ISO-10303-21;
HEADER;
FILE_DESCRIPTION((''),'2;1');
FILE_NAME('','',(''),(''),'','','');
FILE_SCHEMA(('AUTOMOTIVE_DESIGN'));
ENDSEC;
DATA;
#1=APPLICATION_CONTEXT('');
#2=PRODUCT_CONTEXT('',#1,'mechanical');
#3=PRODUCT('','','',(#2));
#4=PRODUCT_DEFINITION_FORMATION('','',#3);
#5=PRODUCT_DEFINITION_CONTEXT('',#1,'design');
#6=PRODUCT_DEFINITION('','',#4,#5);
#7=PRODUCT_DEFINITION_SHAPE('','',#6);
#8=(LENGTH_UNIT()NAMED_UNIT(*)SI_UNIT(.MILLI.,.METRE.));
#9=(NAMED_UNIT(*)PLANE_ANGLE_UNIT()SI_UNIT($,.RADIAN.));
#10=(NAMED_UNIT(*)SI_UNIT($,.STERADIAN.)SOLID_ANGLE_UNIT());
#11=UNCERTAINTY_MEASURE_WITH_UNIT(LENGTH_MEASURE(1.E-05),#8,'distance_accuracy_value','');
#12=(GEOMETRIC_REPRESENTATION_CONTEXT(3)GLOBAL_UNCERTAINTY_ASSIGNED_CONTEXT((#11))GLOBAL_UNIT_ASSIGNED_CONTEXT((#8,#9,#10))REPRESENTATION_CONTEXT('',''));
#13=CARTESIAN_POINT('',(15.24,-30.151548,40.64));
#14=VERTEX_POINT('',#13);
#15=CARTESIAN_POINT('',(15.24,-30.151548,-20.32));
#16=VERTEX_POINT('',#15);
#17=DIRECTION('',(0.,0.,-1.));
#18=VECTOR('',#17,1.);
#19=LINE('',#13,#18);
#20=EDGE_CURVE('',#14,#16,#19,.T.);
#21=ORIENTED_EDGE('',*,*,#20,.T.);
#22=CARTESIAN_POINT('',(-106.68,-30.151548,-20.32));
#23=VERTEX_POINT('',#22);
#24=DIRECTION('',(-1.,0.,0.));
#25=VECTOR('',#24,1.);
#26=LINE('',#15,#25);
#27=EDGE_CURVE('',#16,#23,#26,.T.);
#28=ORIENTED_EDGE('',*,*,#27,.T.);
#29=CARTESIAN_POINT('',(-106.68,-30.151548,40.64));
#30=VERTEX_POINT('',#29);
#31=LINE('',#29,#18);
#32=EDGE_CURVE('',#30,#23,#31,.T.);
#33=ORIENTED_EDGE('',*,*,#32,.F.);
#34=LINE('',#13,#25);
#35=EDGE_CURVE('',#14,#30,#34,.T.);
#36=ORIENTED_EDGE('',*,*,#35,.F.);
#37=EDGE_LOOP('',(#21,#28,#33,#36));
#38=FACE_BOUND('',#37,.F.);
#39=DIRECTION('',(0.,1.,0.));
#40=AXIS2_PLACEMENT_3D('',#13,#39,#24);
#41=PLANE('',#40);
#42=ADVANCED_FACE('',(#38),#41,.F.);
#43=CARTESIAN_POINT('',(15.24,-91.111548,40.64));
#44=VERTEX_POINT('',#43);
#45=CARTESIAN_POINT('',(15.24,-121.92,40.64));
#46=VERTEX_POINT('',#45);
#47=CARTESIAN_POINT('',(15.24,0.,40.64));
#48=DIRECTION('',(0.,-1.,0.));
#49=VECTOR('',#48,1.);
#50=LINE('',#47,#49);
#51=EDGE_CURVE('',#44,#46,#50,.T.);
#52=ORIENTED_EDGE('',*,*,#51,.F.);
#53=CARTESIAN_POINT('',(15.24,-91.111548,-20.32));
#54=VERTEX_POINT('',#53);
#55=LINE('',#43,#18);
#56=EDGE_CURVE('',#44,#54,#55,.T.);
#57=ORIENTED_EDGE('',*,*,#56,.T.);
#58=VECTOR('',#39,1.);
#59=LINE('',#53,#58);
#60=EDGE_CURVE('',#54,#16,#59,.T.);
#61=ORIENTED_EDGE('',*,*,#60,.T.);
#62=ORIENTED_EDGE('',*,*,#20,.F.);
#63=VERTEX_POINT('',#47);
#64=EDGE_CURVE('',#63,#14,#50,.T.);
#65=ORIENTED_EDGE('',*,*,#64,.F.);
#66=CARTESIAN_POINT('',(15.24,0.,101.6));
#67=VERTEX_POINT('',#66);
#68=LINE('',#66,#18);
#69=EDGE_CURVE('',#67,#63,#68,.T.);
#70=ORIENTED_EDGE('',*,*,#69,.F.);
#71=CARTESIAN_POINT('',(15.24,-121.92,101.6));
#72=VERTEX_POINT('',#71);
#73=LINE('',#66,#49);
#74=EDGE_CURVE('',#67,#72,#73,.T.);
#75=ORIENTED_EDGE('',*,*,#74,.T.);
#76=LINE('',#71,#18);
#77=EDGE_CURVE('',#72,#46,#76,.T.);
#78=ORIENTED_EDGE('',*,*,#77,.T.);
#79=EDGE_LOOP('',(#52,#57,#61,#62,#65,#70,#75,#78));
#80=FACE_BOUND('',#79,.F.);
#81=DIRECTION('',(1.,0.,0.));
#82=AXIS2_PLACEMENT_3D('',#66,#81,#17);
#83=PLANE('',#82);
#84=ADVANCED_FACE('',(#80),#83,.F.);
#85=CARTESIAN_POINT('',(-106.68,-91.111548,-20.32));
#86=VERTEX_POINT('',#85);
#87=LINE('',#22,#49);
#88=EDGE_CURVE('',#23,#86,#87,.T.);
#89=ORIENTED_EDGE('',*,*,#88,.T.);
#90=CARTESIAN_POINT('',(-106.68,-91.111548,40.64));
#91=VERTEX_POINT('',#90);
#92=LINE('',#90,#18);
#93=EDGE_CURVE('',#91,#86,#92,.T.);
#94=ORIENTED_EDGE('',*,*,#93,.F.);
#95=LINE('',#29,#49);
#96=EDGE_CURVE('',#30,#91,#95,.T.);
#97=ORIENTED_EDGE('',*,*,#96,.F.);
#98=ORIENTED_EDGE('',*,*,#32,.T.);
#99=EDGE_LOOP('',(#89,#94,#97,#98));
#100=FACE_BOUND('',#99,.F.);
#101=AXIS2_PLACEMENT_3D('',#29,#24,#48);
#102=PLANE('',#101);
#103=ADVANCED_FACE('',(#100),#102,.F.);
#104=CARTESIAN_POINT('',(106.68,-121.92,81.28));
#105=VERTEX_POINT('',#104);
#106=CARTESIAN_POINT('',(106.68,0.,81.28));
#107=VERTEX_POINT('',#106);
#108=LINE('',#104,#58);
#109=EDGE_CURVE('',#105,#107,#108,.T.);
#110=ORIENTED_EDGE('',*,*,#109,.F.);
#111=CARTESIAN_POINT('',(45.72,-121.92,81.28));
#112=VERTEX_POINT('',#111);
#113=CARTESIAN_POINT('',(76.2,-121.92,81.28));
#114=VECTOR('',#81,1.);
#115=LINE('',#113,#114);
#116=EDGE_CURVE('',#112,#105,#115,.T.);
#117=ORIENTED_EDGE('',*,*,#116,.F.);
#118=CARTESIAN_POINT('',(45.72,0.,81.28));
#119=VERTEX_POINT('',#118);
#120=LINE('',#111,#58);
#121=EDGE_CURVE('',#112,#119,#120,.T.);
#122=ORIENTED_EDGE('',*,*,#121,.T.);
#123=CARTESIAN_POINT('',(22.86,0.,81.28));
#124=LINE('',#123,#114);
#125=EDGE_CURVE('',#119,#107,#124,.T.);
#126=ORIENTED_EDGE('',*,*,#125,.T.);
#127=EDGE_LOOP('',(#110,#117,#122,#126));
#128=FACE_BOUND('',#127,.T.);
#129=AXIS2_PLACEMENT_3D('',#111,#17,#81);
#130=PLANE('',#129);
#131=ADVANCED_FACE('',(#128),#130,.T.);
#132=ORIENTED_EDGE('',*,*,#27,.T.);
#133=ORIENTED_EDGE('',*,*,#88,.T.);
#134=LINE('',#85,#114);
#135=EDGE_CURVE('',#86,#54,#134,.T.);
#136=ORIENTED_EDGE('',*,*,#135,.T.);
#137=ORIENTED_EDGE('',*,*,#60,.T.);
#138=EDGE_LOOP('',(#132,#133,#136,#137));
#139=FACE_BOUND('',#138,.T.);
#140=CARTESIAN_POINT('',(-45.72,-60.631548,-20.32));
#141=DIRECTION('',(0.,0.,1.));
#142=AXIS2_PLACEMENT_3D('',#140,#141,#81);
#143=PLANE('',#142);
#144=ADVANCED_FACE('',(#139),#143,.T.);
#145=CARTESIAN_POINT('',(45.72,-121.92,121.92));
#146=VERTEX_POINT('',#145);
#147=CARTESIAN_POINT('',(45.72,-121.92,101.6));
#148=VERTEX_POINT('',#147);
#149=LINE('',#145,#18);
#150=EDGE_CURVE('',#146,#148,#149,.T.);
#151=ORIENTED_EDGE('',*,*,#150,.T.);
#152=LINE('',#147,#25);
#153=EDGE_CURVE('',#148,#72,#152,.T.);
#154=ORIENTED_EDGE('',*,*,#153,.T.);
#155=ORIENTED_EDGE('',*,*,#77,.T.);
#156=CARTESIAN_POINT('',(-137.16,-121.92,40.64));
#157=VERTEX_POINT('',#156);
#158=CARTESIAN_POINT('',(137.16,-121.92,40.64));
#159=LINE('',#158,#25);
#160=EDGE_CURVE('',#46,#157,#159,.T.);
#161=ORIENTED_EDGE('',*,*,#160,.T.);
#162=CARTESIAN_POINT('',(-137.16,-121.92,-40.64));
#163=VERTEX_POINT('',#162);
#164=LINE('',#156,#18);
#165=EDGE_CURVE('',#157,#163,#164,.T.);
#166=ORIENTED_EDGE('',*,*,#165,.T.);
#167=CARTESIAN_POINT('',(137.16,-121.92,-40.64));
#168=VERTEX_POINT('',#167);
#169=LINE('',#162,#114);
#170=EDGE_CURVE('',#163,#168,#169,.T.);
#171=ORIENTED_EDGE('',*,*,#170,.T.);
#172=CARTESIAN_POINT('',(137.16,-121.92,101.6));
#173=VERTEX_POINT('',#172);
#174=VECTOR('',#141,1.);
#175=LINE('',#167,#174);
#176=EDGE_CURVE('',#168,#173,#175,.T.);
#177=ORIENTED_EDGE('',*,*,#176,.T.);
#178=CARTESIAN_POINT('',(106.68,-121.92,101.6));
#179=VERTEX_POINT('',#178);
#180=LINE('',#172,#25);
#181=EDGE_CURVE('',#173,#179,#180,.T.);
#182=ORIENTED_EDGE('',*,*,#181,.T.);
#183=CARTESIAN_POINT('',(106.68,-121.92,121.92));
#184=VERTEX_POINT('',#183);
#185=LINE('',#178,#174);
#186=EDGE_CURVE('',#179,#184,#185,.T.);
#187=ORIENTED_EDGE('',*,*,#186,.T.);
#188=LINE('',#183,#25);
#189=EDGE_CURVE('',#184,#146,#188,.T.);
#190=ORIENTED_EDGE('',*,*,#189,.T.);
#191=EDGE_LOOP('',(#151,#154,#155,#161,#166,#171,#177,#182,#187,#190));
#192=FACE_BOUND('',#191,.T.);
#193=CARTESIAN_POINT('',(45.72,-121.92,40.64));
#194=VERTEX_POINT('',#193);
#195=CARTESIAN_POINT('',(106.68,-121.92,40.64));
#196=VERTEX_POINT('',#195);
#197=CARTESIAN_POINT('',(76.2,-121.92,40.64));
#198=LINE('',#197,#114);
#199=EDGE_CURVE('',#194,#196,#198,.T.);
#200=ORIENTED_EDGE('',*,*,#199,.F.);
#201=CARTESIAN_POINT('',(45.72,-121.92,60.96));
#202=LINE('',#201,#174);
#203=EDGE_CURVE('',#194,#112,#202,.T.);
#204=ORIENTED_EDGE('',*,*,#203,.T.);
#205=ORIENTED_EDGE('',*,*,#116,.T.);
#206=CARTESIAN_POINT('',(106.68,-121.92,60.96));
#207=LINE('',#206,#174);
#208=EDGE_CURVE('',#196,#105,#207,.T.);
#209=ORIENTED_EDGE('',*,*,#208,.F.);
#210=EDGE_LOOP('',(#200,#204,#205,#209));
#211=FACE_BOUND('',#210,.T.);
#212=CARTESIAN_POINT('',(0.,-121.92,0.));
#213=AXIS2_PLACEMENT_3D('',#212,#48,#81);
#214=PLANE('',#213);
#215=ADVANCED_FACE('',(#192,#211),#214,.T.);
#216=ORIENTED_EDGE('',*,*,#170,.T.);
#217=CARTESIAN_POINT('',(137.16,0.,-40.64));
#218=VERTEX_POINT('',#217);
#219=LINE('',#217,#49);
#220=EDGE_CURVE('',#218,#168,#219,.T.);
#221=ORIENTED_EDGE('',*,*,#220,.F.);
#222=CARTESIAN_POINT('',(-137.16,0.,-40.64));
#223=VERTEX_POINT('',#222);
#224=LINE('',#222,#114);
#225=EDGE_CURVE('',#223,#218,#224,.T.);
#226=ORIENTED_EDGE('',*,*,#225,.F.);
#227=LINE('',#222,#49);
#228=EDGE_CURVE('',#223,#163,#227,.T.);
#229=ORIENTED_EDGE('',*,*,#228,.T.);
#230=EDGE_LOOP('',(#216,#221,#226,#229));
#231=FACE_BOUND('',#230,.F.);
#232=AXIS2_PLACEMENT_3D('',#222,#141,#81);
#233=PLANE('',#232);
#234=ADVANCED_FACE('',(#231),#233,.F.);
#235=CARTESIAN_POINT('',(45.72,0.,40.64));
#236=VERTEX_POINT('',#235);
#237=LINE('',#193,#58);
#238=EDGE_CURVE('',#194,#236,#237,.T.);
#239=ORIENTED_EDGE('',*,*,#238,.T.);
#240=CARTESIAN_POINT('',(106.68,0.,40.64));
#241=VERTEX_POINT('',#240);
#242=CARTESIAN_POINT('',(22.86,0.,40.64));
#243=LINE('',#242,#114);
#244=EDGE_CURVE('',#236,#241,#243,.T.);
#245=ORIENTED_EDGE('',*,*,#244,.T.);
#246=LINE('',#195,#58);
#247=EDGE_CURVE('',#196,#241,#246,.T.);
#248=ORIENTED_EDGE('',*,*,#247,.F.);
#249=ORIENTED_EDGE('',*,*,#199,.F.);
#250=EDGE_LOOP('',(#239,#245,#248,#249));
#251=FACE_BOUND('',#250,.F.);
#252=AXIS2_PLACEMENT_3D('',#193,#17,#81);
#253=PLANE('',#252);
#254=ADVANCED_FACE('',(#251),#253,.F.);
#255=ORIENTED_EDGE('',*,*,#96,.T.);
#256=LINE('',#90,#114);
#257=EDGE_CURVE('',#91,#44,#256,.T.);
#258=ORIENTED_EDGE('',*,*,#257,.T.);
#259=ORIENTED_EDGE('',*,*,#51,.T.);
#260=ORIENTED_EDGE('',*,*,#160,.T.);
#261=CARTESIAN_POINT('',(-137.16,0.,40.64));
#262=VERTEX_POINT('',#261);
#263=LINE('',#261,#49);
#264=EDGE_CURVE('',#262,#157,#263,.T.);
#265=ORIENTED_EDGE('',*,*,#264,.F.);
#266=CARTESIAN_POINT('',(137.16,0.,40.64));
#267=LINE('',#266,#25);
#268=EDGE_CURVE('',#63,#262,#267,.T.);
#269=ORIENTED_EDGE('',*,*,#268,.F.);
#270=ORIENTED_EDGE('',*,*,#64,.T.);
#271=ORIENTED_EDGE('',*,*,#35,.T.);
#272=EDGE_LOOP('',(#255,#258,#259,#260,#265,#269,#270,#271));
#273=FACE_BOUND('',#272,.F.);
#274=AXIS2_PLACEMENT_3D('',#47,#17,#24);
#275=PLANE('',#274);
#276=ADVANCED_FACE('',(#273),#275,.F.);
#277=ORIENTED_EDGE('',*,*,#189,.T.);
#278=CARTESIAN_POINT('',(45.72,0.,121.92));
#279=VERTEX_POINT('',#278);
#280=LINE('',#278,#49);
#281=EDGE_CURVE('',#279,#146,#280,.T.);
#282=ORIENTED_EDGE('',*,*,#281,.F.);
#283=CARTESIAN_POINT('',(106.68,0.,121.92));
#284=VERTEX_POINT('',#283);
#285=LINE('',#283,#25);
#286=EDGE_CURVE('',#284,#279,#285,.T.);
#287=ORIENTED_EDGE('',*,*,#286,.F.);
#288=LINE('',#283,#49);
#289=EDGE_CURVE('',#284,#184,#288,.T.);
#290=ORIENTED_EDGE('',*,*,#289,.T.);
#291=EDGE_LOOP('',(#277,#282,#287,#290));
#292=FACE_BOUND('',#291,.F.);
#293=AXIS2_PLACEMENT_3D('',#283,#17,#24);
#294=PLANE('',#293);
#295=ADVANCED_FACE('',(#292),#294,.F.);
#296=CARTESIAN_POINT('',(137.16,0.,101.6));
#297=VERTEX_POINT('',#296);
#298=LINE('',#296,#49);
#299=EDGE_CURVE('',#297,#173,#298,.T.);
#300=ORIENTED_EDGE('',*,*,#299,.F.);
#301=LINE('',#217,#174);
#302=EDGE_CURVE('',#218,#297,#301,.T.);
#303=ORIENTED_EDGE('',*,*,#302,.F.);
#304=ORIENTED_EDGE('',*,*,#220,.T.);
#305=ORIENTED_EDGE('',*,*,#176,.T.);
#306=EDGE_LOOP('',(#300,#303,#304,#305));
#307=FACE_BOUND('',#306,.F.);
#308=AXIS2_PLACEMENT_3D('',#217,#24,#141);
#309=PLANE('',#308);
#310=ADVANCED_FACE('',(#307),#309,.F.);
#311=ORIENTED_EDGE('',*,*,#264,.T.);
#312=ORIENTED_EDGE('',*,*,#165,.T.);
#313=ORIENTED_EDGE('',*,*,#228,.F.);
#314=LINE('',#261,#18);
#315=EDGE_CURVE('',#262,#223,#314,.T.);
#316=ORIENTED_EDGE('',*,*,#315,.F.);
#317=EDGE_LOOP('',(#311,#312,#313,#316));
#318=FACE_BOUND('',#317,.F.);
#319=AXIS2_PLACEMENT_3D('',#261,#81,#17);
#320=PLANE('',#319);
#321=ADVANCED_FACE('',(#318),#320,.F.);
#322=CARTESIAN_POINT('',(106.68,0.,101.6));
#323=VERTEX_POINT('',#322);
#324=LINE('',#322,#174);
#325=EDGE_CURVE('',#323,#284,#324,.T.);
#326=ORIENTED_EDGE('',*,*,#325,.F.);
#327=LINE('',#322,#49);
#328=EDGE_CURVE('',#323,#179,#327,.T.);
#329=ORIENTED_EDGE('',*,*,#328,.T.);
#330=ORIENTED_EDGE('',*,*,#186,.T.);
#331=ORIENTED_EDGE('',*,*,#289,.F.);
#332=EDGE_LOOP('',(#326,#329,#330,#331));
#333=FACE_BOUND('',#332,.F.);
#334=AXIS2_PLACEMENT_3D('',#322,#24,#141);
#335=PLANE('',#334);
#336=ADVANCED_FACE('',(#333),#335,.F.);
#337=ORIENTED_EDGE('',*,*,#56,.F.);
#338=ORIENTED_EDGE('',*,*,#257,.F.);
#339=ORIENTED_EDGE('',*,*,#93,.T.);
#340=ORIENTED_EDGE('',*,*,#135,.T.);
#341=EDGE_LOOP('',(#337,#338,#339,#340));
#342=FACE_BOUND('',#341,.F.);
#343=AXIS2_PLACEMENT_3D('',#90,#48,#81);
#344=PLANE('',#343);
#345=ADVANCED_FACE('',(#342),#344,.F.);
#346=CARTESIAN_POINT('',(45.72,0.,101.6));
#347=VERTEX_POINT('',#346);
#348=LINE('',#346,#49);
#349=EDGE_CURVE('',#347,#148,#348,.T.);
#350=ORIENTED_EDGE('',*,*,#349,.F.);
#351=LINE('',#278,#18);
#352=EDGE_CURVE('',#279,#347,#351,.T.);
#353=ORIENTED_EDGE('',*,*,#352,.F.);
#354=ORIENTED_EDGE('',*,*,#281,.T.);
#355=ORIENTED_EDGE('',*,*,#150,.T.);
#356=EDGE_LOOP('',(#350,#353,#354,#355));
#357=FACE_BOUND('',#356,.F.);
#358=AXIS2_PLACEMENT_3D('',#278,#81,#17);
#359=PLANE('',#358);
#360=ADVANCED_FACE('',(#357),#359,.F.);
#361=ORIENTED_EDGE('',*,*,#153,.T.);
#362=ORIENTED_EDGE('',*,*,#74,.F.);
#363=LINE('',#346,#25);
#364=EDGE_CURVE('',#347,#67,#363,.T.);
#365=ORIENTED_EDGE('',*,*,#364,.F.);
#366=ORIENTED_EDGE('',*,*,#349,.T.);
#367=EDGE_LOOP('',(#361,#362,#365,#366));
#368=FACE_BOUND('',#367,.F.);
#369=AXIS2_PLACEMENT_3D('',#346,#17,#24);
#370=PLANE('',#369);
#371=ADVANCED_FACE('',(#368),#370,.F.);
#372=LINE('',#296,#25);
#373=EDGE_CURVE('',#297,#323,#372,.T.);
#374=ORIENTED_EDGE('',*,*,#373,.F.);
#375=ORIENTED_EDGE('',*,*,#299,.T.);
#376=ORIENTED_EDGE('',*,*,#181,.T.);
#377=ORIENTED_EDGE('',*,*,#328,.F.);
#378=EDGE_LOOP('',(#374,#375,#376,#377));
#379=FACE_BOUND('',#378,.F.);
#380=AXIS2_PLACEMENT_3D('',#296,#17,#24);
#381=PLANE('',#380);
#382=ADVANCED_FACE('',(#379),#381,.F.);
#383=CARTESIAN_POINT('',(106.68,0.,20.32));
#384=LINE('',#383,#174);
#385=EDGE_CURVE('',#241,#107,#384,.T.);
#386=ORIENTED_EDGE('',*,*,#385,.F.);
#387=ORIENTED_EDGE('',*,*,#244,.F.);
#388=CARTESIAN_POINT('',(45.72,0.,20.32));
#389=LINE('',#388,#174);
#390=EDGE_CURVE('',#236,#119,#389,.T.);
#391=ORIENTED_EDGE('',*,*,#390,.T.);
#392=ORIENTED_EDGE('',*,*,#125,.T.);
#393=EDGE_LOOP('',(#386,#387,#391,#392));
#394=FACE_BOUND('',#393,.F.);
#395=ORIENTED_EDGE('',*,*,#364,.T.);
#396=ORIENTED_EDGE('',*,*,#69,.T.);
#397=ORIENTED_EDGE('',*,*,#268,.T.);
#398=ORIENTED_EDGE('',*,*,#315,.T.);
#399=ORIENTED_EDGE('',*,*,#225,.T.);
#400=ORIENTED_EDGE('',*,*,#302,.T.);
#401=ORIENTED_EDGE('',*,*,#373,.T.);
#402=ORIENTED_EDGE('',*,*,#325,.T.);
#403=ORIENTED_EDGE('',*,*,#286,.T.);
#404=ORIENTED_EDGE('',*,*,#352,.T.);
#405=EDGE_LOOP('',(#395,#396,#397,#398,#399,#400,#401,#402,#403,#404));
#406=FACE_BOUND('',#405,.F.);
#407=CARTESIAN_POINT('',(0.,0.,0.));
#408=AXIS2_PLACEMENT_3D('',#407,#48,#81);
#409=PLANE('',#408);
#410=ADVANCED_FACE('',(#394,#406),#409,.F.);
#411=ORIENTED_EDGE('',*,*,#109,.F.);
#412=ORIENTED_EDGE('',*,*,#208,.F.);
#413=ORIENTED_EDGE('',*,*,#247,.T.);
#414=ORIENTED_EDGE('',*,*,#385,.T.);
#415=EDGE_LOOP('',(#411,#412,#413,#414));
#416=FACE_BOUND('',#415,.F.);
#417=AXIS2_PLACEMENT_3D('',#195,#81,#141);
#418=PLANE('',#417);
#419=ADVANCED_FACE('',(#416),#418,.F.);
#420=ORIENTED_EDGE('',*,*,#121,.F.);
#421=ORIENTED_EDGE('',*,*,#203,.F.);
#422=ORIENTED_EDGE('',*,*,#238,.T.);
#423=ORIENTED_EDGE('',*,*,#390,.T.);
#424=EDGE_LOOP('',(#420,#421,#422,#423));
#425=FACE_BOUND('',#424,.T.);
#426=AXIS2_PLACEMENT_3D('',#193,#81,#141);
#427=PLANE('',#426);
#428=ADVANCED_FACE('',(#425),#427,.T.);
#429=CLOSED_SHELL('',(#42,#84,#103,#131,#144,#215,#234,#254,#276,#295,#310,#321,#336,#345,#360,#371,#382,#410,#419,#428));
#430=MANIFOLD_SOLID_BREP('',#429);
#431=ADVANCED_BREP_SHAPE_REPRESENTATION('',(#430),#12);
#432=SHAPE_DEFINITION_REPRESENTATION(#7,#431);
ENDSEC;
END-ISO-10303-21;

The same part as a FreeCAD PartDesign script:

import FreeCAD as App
import Part
import Sketcher

V = App.Vector
Q = App.Units.Quantity

doc = App.newDocument("Part")
body = doc.addObject("PartDesign::Body", "Body")

# Sketch on XZ plane
sketch1 = body.newObject("Sketcher::SketchObject", "Sketch")
sketch1.AttachmentSupport = (doc.getObject("XZ_Plane"), [""])
sketch1.MapMode = "FlatFace"
sketch1.addGeometry([
    Part.LineSegment(V(137, -41, 0), V(137, 102, 0)),  # 0
    Part.LineSegment(V(137, 102, 0), V(107, 102, 0)),  # 1
    Part.LineSegment(V(107, 102, 0), V(107, 122, 0)),  # 2
    Part.LineSegment(V(107, 122, 0), V(46, 122, 0)),  # 3
    Part.LineSegment(V(46, 122, 0), V(46, 102, 0)),  # 4
    Part.LineSegment(V(46, 102, 0), V(15, 102, 0)),  # 5
    Part.LineSegment(V(15, 102, 0), V(15, 41, 0)),  # 6
    Part.LineSegment(V(15, 41, 0), V(-137, 41, 0)),  # 7
    Part.LineSegment(V(-137, 41, 0), V(-137, -41, 0)),  # 8
    Part.LineSegment(V(-137, -41, 0), V(137, -41, 0)),  # 9
], False)
sketch1.addConstraint([
    Sketcher.Constraint("Coincident", 0, 2, 1, 1),
    Sketcher.Constraint("Coincident", 1, 2, 2, 1),
    Sketcher.Constraint("Coincident", 2, 2, 3, 1),
    Sketcher.Constraint("Coincident", 3, 2, 4, 1),
    Sketcher.Constraint("Coincident", 4, 2, 5, 1),
    Sketcher.Constraint("Coincident", 5, 2, 6, 1),
    Sketcher.Constraint("Coincident", 6, 2, 7, 1),
    Sketcher.Constraint("Coincident", 7, 2, 8, 1),
    Sketcher.Constraint("Coincident", 8, 2, 9, 1),
    Sketcher.Constraint("Coincident", 9, 2, 0, 1),
    Sketcher.Constraint("Vertical", 0),
    Sketcher.Constraint("Horizontal", 1),
    Sketcher.Constraint("Vertical", 2),
    Sketcher.Constraint("Horizontal", 3),
    Sketcher.Constraint("Vertical", 4),
    Sketcher.Constraint("Horizontal", 5),
    Sketcher.Constraint("Vertical", 6),
    Sketcher.Constraint("Horizontal", 7),
    Sketcher.Constraint("Vertical", 8),
    Sketcher.Constraint("Horizontal", 9),
    Sketcher.Constraint("Symmetric", 7, 2, 9, 2, -1, 1),
    Sketcher.Constraint("Horizontal", 1, 2, 4, 2),
    Sketcher.Constraint("Equal", 1, 5),
    Sketcher.Constraint("Equal", 3, 6),
    Sketcher.Constraint("DistanceX", 7, 2, 7, 1, Q("6 in")),
    Sketcher.Constraint("DistanceX", 1, 2, 1, 1, Q("1.2 in")),
    Sketcher.Constraint("DistanceX", 3, 2, 3, 1, Q("2.4 in")),
    Sketcher.Constraint("DistanceY", 0, 1, 0, 2, Q("5.6 in")),
    Sketcher.Constraint("DistanceY", 2, 1, 2, 2, Q("0.8 in")),
])
pad1 = body.newObject("PartDesign::Pad", "Pad")
pad1.Profile = sketch1
pad1.Length = Q("4.8 in")

# Sketch on XY plane
sketch2 = body.newObject("Sketcher::SketchObject", "Sketch001")
sketch2.AttachmentSupport = (doc.getObject("XY_Plane"), [""])
sketch2.MapMode = "FlatFace"
sketch2.AttachmentOffset = App.Placement(V(0, 0, 1.6 * 25.4), App.Rotation())
sketch2.addGeometry([
    Part.LineSegment(V(15, -91, 0), V(15, -30, 0)),
    Part.LineSegment(V(15, -30, 0), V(-107, -30, 0)),
    Part.LineSegment(V(-107, -30, 0), V(-107, -91, 0)),
    Part.LineSegment(V(-107, -91, 0), V(15, -91, 0)),
], False)
sketch2.addConstraint([
    Sketcher.Constraint("Coincident", 0, 2, 1, 1),
    Sketcher.Constraint("Coincident", 1, 2, 2, 1),
    Sketcher.Constraint("Coincident", 2, 2, 3, 1),
    Sketcher.Constraint("Coincident", 3, 2, 0, 1),
    Sketcher.Constraint("Vertical", 0),
    Sketcher.Constraint("Horizontal", 1),
    Sketcher.Constraint("Vertical", 2),
    Sketcher.Constraint("Horizontal", 3),
    Sketcher.Constraint("DistanceX", 1, 2, 1, 1, Q("4.8 in")),
    Sketcher.Constraint("DistanceY", 0, 1, 0, 2, Q("2.4 in")),
    Sketcher.Constraint("DistanceX", -1, 1, 0, 2, Q("0.6 in")),
    Sketcher.Constraint("DistanceY", 2, 2, -1, 1, 91.111548),
])
pocket1 = body.newObject("PartDesign::Pocket", "Pocket")
pocket1.Profile = sketch2
pocket1.Length = Q("2.4 in")

# Sketch on XZ plane
sketch3 = body.newObject("Sketcher::SketchObject", "Sketch002")
sketch3.AttachmentSupport = (doc.getObject("XZ_Plane"), [""])
sketch3.MapMode = "FlatFace"
sketch3.AttachmentOffset = App.Placement(V(0, 0, 4.8 * 25.4), App.Rotation())
sketch3.addGeometry([
    Part.LineSegment(V(46, 81, 0), V(46, 41, 0)),
    Part.LineSegment(V(46, 41, 0), V(107, 41, 0)),
    Part.LineSegment(V(107, 41, 0), V(107, 81, 0)),
    Part.LineSegment(V(107, 81, 0), V(46, 81, 0)),
], False)
sketch3.addConstraint([
    Sketcher.Constraint("Coincident", 0, 2, 1, 1),
    Sketcher.Constraint("Coincident", 1, 2, 2, 1),
    Sketcher.Constraint("Coincident", 2, 2, 3, 1),
    Sketcher.Constraint("Coincident", 3, 2, 0, 1),
    Sketcher.Constraint("Vertical", 0),
    Sketcher.Constraint("Horizontal", 1),
    Sketcher.Constraint("Vertical", 2),
    Sketcher.Constraint("Horizontal", 3),
    Sketcher.Constraint("DistanceX", 1, 1, 1, 2, Q("2.4 in")),
    Sketcher.Constraint("DistanceY", 0, 2, 0, 1, Q("1.6 in")),
    Sketcher.Constraint("DistanceX", -1, 1, 0, 2, Q("1.8 in")),
    Sketcher.Constraint("DistanceY", -1, 1, 0, 2, Q("1.6 in")),
])
pocket2 = body.newObject("PartDesign::Pocket", "Pocket001")
pocket2.Profile = sketch3
pocket2.Type = "ThroughAll"

doc.recompute()
